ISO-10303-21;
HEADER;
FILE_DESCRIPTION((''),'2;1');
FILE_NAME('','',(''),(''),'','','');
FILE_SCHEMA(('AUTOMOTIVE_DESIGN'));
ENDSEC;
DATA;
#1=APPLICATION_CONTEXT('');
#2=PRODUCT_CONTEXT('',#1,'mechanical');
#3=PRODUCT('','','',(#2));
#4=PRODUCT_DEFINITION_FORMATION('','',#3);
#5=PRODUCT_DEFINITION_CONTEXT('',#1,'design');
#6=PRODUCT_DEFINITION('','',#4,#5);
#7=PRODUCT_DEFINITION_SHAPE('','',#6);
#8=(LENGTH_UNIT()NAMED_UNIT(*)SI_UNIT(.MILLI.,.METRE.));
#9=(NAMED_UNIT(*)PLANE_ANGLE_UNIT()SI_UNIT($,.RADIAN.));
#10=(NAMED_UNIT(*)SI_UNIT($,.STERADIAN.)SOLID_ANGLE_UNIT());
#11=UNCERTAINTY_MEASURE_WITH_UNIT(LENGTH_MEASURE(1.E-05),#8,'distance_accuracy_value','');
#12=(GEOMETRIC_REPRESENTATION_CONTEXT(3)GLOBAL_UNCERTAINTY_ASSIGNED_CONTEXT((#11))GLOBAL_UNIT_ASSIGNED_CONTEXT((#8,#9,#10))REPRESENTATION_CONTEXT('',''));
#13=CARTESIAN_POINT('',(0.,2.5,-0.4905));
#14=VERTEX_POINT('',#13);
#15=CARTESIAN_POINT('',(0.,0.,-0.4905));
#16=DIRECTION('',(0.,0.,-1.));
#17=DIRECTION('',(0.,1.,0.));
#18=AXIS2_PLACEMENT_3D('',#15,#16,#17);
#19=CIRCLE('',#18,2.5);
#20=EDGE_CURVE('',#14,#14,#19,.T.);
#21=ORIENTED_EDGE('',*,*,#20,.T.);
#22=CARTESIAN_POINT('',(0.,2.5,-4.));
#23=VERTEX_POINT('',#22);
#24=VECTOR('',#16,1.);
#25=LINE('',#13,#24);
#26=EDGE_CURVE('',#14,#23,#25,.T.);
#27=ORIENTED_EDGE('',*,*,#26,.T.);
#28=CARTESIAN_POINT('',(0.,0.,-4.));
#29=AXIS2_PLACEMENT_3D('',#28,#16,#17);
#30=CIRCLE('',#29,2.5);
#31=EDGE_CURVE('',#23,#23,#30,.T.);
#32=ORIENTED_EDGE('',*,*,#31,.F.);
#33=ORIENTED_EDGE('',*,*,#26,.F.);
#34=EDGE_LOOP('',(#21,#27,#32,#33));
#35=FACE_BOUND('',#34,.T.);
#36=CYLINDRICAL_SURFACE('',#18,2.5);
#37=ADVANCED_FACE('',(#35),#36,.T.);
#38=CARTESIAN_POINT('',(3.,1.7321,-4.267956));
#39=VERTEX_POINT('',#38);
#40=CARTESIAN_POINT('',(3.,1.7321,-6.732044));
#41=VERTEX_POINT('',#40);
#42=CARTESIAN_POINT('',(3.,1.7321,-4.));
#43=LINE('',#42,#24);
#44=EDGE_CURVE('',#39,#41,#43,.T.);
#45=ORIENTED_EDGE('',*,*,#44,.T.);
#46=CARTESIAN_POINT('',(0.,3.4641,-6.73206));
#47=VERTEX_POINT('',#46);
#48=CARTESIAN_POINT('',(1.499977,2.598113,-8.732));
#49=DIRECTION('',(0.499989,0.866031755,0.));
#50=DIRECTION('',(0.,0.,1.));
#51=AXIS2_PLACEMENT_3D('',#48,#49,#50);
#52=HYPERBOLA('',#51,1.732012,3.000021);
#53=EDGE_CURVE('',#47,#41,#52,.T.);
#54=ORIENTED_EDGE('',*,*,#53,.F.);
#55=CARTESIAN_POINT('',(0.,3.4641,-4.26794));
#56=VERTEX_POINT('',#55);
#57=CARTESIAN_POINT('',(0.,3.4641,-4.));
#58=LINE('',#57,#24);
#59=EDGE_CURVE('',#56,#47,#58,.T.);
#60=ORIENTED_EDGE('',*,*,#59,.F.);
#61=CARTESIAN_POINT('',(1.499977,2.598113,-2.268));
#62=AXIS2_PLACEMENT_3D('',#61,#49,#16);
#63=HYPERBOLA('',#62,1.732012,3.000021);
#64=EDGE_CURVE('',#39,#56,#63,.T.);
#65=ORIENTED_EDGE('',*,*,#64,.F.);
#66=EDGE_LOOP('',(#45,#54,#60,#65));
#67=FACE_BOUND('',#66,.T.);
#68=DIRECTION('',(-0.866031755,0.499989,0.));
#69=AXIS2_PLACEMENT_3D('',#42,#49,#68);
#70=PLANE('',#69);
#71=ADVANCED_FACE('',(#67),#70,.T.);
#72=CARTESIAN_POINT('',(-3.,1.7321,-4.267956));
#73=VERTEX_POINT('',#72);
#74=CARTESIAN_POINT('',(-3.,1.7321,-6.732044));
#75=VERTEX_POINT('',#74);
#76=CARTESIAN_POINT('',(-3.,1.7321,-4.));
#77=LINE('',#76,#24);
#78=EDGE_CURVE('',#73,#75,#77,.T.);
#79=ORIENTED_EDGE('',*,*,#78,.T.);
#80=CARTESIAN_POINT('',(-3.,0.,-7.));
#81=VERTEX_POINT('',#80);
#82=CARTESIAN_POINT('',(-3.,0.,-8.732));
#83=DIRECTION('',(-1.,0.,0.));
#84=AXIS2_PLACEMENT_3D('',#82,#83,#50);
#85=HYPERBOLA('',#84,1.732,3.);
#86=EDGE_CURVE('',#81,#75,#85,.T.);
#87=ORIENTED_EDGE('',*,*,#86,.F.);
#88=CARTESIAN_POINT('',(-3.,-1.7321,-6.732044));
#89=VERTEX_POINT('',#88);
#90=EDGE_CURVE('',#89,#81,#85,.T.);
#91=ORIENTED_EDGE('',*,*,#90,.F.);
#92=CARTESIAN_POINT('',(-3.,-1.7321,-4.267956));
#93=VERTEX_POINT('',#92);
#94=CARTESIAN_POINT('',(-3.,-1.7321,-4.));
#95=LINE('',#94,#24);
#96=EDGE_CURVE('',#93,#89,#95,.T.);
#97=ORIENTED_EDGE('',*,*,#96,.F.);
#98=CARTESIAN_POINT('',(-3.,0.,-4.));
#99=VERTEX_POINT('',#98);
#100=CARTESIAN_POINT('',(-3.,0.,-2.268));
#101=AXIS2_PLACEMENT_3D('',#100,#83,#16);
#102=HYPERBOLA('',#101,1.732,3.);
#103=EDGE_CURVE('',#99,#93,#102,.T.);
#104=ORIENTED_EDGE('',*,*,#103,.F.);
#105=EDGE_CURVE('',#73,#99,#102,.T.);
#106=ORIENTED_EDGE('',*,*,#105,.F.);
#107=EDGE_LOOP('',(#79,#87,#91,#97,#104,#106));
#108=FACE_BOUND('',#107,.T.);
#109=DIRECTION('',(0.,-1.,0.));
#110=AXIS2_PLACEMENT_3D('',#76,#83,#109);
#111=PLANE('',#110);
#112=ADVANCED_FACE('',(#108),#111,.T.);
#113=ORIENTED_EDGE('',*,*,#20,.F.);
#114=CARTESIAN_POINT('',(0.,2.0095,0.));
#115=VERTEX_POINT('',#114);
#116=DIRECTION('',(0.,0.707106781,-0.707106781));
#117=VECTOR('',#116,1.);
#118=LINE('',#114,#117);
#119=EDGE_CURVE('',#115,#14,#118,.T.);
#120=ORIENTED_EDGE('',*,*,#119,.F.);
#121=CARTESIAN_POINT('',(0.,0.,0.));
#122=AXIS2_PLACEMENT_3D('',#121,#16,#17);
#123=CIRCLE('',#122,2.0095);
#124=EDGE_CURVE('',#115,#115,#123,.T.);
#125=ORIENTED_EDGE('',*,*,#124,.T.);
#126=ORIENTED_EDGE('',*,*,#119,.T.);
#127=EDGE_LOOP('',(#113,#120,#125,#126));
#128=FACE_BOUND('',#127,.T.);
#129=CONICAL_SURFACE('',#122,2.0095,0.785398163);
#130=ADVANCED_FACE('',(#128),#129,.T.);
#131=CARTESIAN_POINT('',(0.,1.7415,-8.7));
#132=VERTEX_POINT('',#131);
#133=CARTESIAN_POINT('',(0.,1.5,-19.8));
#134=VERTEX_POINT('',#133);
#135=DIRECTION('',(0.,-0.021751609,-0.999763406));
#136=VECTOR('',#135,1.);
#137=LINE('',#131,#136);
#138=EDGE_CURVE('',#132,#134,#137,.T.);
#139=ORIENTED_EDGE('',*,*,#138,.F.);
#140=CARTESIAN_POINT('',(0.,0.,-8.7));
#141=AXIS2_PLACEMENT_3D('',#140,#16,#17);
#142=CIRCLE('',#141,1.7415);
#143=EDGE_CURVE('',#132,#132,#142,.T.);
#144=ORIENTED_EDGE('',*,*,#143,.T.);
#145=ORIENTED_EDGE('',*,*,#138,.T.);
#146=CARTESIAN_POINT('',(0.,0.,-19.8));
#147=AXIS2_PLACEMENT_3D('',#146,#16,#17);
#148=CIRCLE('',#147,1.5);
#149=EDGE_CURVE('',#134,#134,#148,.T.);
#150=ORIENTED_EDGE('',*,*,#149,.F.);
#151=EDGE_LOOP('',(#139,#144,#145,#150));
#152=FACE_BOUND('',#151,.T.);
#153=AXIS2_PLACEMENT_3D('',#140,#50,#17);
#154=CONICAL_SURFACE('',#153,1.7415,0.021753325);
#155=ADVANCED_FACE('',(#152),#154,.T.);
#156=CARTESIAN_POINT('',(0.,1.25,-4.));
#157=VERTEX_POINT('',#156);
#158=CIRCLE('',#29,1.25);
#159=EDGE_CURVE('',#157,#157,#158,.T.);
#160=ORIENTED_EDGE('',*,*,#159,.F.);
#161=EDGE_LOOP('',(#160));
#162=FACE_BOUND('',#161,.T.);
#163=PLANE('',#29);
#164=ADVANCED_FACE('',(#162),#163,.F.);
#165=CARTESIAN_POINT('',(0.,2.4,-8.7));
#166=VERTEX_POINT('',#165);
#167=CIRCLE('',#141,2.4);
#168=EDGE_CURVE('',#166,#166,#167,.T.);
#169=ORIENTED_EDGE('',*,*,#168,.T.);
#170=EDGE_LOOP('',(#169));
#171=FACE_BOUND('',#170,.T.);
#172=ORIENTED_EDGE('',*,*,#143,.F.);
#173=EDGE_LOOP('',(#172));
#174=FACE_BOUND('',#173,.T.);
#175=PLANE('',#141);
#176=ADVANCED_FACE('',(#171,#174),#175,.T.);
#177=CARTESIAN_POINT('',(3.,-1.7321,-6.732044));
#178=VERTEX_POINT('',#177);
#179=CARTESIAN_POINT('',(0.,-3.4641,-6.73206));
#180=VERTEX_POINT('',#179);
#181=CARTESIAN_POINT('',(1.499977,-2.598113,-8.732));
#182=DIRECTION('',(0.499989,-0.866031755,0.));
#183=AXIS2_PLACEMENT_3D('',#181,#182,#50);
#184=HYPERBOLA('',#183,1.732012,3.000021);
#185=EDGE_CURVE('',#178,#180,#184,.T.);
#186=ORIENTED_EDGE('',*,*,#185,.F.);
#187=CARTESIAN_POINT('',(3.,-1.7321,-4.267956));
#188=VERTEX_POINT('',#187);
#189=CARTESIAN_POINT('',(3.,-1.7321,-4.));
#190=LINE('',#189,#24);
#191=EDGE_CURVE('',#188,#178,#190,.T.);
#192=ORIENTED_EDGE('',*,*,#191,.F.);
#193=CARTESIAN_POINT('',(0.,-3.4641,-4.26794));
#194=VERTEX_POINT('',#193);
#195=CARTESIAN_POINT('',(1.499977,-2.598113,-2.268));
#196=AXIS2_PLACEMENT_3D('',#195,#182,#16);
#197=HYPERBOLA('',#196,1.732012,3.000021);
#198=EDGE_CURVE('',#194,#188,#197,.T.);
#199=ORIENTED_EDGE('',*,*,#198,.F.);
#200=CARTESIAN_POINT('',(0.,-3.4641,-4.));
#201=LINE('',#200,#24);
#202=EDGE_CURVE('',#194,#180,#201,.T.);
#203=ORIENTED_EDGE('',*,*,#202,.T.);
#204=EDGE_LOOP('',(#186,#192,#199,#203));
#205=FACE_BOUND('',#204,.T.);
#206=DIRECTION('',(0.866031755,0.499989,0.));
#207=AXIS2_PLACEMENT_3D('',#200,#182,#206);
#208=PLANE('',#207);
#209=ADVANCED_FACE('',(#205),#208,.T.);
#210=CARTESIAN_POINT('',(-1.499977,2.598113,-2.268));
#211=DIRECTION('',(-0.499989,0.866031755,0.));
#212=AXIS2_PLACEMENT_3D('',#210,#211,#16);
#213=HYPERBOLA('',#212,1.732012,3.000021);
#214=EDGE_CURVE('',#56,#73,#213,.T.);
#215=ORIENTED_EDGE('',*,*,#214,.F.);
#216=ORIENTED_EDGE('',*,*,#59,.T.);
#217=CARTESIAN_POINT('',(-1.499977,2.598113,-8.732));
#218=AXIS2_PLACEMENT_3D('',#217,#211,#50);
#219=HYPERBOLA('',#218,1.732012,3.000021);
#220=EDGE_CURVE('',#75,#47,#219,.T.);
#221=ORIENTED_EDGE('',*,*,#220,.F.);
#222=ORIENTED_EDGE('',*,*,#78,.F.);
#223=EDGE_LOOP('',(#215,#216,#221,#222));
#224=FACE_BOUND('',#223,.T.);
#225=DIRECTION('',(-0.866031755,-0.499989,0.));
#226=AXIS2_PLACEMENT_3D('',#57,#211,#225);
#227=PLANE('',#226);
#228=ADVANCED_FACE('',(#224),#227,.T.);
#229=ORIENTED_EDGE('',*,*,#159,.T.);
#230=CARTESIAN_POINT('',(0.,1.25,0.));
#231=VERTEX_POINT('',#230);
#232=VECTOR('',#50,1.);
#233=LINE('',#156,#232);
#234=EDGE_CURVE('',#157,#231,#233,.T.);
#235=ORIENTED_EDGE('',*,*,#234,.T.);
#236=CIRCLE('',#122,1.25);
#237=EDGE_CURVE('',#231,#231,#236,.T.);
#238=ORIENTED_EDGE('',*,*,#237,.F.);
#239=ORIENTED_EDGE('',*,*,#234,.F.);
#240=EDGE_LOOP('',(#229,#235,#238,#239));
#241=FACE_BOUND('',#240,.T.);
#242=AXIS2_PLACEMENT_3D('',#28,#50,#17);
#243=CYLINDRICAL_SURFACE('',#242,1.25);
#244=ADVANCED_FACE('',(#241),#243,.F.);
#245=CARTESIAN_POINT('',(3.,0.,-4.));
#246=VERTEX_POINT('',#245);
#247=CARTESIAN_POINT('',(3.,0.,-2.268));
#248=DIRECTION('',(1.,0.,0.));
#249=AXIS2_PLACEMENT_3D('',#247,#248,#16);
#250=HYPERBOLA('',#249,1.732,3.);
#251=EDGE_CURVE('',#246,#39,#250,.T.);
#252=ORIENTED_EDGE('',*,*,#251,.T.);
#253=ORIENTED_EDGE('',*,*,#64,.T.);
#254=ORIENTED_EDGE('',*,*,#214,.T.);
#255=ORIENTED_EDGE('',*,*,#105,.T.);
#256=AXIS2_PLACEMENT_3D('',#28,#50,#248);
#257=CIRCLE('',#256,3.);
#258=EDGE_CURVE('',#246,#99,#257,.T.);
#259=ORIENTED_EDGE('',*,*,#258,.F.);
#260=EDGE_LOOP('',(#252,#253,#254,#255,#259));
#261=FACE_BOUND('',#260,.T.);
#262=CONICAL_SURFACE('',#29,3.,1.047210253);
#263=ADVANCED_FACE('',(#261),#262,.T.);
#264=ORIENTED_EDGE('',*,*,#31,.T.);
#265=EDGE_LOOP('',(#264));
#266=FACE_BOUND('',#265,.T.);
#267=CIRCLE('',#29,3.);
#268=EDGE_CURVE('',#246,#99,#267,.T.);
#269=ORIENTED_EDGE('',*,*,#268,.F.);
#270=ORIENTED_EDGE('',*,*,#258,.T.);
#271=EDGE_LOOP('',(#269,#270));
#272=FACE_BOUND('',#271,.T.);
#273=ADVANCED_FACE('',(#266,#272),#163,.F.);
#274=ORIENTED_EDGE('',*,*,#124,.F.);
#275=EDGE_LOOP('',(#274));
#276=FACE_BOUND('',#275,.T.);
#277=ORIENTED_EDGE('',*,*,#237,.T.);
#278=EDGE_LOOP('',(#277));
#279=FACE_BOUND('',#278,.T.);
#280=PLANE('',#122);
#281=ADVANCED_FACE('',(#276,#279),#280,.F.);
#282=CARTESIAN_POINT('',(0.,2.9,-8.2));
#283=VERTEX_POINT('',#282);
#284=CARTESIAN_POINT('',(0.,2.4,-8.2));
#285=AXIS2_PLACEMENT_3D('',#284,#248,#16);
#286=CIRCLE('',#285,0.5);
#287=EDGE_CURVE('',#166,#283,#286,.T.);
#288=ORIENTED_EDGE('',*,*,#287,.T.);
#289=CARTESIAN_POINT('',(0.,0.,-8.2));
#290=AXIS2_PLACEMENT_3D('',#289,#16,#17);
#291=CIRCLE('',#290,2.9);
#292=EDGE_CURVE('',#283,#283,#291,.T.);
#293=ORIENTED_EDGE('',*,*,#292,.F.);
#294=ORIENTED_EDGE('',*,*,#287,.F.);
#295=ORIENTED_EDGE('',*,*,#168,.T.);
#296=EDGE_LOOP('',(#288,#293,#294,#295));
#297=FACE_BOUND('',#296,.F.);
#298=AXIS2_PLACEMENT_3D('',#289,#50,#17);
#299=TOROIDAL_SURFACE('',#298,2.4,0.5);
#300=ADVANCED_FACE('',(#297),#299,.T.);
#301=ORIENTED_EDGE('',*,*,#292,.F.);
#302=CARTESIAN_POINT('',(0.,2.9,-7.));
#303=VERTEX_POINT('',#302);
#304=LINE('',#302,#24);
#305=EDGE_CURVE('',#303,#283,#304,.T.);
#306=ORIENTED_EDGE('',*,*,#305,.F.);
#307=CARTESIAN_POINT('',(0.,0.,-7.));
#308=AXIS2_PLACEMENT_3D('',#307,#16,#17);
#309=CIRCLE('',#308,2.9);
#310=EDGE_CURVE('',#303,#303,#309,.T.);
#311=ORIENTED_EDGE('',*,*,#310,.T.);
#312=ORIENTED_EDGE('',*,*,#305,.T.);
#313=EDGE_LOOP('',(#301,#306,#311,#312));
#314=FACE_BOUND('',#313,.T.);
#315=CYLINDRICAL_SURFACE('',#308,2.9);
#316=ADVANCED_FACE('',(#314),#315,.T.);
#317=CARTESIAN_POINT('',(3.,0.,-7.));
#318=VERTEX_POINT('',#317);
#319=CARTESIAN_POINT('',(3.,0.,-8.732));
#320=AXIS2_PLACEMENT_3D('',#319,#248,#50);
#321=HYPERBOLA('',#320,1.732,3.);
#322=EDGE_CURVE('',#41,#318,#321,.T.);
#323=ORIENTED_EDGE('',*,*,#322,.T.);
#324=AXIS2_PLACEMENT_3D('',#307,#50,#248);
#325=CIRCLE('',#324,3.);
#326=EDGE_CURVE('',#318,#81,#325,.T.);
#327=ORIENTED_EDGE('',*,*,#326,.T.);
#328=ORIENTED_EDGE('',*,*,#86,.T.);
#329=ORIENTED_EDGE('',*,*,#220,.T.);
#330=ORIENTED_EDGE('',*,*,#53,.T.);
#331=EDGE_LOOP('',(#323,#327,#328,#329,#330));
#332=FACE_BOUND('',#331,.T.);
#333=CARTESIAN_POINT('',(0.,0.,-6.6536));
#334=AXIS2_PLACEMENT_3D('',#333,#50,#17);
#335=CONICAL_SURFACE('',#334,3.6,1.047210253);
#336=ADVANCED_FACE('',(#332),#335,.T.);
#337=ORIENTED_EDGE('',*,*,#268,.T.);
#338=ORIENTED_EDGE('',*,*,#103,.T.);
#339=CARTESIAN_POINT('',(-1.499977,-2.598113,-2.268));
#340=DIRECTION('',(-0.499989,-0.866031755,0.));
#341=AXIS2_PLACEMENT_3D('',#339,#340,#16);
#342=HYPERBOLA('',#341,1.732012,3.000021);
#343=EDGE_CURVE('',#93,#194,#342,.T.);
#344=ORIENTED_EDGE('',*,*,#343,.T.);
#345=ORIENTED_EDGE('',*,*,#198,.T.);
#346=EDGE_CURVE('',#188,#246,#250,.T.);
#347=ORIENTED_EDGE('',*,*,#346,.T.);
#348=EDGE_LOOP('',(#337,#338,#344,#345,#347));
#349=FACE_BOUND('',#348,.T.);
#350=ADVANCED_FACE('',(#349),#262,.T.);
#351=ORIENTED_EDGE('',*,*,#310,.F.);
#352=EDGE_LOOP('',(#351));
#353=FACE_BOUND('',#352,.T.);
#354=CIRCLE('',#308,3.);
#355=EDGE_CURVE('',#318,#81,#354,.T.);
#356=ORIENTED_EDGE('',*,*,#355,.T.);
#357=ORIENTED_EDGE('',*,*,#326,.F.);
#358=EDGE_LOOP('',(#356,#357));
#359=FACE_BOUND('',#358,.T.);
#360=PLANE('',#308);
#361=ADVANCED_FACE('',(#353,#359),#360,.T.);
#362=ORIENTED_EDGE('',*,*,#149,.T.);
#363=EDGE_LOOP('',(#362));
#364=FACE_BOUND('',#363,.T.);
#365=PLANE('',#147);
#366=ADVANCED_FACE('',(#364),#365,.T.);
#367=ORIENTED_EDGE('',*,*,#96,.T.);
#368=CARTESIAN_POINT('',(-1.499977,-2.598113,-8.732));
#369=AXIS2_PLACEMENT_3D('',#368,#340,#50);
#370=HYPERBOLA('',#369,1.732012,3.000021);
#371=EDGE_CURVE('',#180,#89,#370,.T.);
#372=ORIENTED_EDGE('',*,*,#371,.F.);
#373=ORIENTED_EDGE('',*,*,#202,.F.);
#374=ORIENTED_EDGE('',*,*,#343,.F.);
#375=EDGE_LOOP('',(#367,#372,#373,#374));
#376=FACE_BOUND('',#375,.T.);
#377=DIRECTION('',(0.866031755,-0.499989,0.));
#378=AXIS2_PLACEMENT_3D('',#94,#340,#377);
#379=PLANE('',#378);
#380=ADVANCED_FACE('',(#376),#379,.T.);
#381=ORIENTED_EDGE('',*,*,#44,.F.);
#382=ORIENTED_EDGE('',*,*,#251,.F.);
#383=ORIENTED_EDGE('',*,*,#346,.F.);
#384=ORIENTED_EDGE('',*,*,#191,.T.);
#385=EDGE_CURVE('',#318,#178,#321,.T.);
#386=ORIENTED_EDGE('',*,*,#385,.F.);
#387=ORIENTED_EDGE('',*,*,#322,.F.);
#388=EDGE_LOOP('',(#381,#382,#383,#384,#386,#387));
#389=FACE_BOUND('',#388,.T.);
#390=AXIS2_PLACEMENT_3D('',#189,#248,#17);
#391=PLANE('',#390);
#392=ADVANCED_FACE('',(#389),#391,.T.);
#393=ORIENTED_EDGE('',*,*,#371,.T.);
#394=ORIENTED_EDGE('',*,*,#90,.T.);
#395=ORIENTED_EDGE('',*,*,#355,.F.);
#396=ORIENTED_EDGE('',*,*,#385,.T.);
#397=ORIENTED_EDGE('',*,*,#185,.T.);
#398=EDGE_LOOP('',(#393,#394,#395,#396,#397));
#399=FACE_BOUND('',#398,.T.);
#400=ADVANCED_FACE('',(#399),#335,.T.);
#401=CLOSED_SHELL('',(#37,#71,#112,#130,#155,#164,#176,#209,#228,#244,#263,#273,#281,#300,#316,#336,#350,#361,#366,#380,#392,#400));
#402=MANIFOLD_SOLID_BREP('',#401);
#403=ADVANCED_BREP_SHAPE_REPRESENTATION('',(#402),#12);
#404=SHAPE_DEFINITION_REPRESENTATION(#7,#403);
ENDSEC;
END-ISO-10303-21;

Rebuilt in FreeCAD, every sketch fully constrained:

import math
import FreeCAD as App
import Part
import Sketcher
Q = App.Units.Quantity

doc = App.newDocument("Part")
body = doc.addObject("PartDesign::Body", "Body")

# Sketch on YZ plane
sketch1 = body.newObject("Sketcher::SketchObject", "Sketch")
sketch1.AttachmentSupport = (doc.getObject("YZ_Plane"), [""])
sketch1.MapMode = "FlatFace"
sketch1.addGeometry([
    Part.LineSegment(App.Vector(0, -4, 0), App.Vector(0, -19.8, 0)),  # 0
    Part.LineSegment(App.Vector(0, -19.8, 0), App.Vector(1.5, -19.8, 0)),  # 1
    Part.LineSegment(App.Vector(1.5, -19.8, 0), App.Vector(1.7415, -8.7, 0)),  # 2
    Part.LineSegment(App.Vector(1.7415, -8.7, 0), App.Vector(2.4, -8.7, 0)),  # 3
    Part.ArcOfCircle(Part.Circle(App.Vector(2.4, -8.2, 0), App.Vector(0, 0, 1), 0.5), math.radians(-90), math.radians(0)),  # 4
    Part.LineSegment(App.Vector(2.9, -8.2, 0), App.Vector(2.9, -7, 0)),  # 5
    Part.LineSegment(App.Vector(2.9, -7, 0), App.Vector(3, -7, 0)),  # 6
    Part.LineSegment(App.Vector(3, -7, 0), App.Vector(3.6, -6.6536, 0)),  # 7
    Part.LineSegment(App.Vector(3.6, -6.6536, 0), App.Vector(3.6, -4.3464, 0)),  # 8
    Part.LineSegment(App.Vector(3.6, -4.3464, 0), App.Vector(3, -4, 0)),  # 9
    Part.LineSegment(App.Vector(3, -4, 0), App.Vector(2.5, -4, 0)),  # 10
    Part.LineSegment(App.Vector(2.5, -4, 0), App.Vector(2.5, -0.4905, 0)),  # 11
    Part.LineSegment(App.Vector(2.5, -0.4905, 0), App.Vector(2.0095, 0, 0)),  # 12
    Part.LineSegment(App.Vector(2.0095, 0, 0), App.Vector(1.25, 0, 0)),  # 13
    Part.LineSegment(App.Vector(1.25, 0, 0), App.Vector(1.25, -4, 0)),  # 14
    Part.LineSegment(App.Vector(1.25, -4, 0), App.Vector(0, -4, 0)),  # 15
], False)
sketch1.addConstraint([
    Sketcher.Constraint("Coincident", 0, 2, 1, 1),
    Sketcher.Constraint("Coincident", 1, 2, 2, 1),
    Sketcher.Constraint("Coincident", 2, 2, 3, 1),
    Sketcher.Constraint("Tangent", 3, 2, 4, 1),
    Sketcher.Constraint("Tangent", 4, 2, 5, 1),
    Sketcher.Constraint("Coincident", 5, 2, 6, 1),
    Sketcher.Constraint("Coincident", 6, 2, 7, 1),
    Sketcher.Constraint("Coincident", 7, 2, 8, 1),
    Sketcher.Constraint("Coincident", 8, 2, 9, 1),
    Sketcher.Constraint("Coincident", 9, 2, 10, 1),
    Sketcher.Constraint("Coincident", 10, 2, 11, 1),
    Sketcher.Constraint("Coincident", 11, 2, 12, 1),
    Sketcher.Constraint("Coincident", 12, 2, 13, 1),
    Sketcher.Constraint("Coincident", 13, 2, 14, 1),
    Sketcher.Constraint("Coincident", 14, 2, 15, 1),
    Sketcher.Constraint("Coincident", 15, 2, 0, 1),
    Sketcher.Constraint("Vertical", 0),
    Sketcher.Constraint("Horizontal", 1),
    Sketcher.Constraint("Horizontal", 3),
    Sketcher.Constraint("Vertical", 5),
    Sketcher.Constraint("Horizontal", 6),
    Sketcher.Constraint("Vertical", 8),
    Sketcher.Constraint("Horizontal", 10),
    Sketcher.Constraint("Vertical", 11),
    Sketcher.Constraint("Horizontal", 13),
    Sketcher.Constraint("Vertical", 14),
    Sketcher.Constraint("Horizontal", 15),
    Sketcher.Constraint("PointOnObject", 0, 2, -2),
    Sketcher.Constraint("PointOnObject", 12, 2, -1),
    Sketcher.Constraint("Horizontal", 10, 2, 14, 2),
    Sketcher.Constraint("Vertical", 6, 2, 9, 2),
    Sketcher.Constraint("Equal", 7, 9),
    Sketcher.Constraint("Radius", 4, Q("0.5 mm")),
    Sketcher.Constraint("DistanceY", 14, 2, 14, 1, Q("4 mm")),
    Sketcher.Constraint("Angle", 7, Q("29.9993 deg")),
    Sketcher.Constraint("Angle", 12, Q("135 deg")),
    Sketcher.Constraint("DistanceX", 1, 1, 1, 2, Q("1.5 mm")),
    Sketcher.Constraint("DistanceX", 6, 1, 6, 2, Q("0.1 mm")),
    Sketcher.Constraint("DistanceX", 10, 2, 10, 1, Q("0.5 mm")),
    Sketcher.Constraint("DistanceY", 0, 2, 0, 1, Q("15.8 mm")),
    Sketcher.Constraint("DistanceY", 5, 1, 5, 2, Q("1.2 mm")),
    Sketcher.Constraint("DistanceY", 5, 2, -1, 1, Q("7 mm")),
    Sketcher.Constraint("DistanceX", -1, 1, 6, 2, Q("3 mm")),
    Sketcher.Constraint("DistanceX", 15, 2, 15, 1, Q("1.25 mm")),
    Sketcher.Constraint("DistanceX", -1, 1, 7, 2, Q("3.6 mm")),
    Sketcher.Constraint("DistanceX", 3, 1, 3, 2, Q("0.6585 mm")),
    Sketcher.Constraint("DistanceX", 13, 2, 13, 1, Q("0.7595 mm")),
])
revolution = body.newObject("PartDesign::Revolution", "Revolution")
revolution.Profile = sketch1
revolution.ReferenceAxis = (sketch1, ["V_Axis"])
revolution.Angle = 360

# Sketch on XY plane
sketch2 = body.newObject("Sketcher::SketchObject", "Sketch001")
sketch2.AttachmentSupport = (doc.getObject("XY_Plane"), [""])
sketch2.MapMode = "FlatFace"
sketch2.AttachmentOffset = App.Placement(App.Vector(0, 0, -4), App.Rotation())
sketch2.addGeometry([
    Part.LineSegment(App.Vector(6, 6, 0), App.Vector(-6, 6, 0)),  # 0
    Part.LineSegment(App.Vector(-6, 6, 0), App.Vector(-6, -6, 0)),  # 1
    Part.LineSegment(App.Vector(-6, -6, 0), App.Vector(6, -6, 0)),  # 2
    Part.LineSegment(App.Vector(6, -6, 0), App.Vector(6, 6, 0)),  # 3
    Part.LineSegment(App.Vector(0, -3.4641, 0), App.Vector(-3, -1.7321, 0)),  # 4
    Part.LineSegment(App.Vector(-3, -1.7321, 0), App.Vector(-3, 1.7321, 0)),  # 5
    Part.LineSegment(App.Vector(-3, 1.7321, 0), App.Vector(0, 3.4641, 0)),  # 6
    Part.LineSegment(App.Vector(0, 3.4641, 0), App.Vector(3, 1.7321, 0)),  # 7
    Part.LineSegment(App.Vector(3, 1.7321, 0), App.Vector(3, -1.7321, 0)),  # 8
    Part.LineSegment(App.Vector(3, -1.7321, 0), App.Vector(0, -3.4641, 0)),  # 9
], False)
sketch2.addConstraint([
    Sketcher.Constraint("Coincident", 0, 2, 1, 1),
    Sketcher.Constraint("Coincident", 1, 2, 2, 1),
    Sketcher.Constraint("Coincident", 2, 2, 3, 1),
    Sketcher.Constraint("Coincident", 3, 2, 0, 1),
    Sketcher.Constraint("Coincident", 4, 2, 5, 1),
    Sketcher.Constraint("Coincident", 5, 2, 6, 1),
    Sketcher.Constraint("Coincident", 6, 2, 7, 1),
    Sketcher.Constraint("Coincident", 7, 2, 8, 1),
    Sketcher.Constraint("Coincident", 8, 2, 9, 1),
    Sketcher.Constraint("Coincident", 9, 2, 4, 1),
    Sketcher.Constraint("Horizontal", 0),
    Sketcher.Constraint("Vertical", 1),
    Sketcher.Constraint("Horizontal", 2),
    Sketcher.Constraint("Vertical", 3),
    Sketcher.Constraint("Vertical", 5),
    Sketcher.Constraint("Vertical", 8),
    Sketcher.Constraint("Symmetric", 0, 2, 2, 2, -1, 1),
    Sketcher.Constraint("Symmetric", 4, 2, 7, 2, -1, 1),
    Sketcher.Constraint("Symmetric", 6, 2, 9, 2, -1, 1),
    Sketcher.Constraint("PointOnObject", 6, 2, -2),
    Sketcher.Constraint("Parallel", 6, 9),
    Sketcher.Constraint("Horizontal", 5, 2, 7, 2),
    Sketcher.Constraint("Equal", 2, 1),
    Sketcher.Constraint("DistanceX", 0, 2, 0, 1, Q("12 mm")),
    Sketcher.Constraint("Angle", 4, Q("150.0007 deg")),
    Sketcher.Constraint("DistanceX", 4, 2, -1, 1, Q("3 mm")),
    Sketcher.Constraint("DistanceY", 5, 1, 5, 2, Q("3.4642 mm")),
])
pocket1 = body.newObject("PartDesign::Pocket", "Pocket")
pocket1.Profile = sketch2
pocket1.Length = 3

doc.recompute()
